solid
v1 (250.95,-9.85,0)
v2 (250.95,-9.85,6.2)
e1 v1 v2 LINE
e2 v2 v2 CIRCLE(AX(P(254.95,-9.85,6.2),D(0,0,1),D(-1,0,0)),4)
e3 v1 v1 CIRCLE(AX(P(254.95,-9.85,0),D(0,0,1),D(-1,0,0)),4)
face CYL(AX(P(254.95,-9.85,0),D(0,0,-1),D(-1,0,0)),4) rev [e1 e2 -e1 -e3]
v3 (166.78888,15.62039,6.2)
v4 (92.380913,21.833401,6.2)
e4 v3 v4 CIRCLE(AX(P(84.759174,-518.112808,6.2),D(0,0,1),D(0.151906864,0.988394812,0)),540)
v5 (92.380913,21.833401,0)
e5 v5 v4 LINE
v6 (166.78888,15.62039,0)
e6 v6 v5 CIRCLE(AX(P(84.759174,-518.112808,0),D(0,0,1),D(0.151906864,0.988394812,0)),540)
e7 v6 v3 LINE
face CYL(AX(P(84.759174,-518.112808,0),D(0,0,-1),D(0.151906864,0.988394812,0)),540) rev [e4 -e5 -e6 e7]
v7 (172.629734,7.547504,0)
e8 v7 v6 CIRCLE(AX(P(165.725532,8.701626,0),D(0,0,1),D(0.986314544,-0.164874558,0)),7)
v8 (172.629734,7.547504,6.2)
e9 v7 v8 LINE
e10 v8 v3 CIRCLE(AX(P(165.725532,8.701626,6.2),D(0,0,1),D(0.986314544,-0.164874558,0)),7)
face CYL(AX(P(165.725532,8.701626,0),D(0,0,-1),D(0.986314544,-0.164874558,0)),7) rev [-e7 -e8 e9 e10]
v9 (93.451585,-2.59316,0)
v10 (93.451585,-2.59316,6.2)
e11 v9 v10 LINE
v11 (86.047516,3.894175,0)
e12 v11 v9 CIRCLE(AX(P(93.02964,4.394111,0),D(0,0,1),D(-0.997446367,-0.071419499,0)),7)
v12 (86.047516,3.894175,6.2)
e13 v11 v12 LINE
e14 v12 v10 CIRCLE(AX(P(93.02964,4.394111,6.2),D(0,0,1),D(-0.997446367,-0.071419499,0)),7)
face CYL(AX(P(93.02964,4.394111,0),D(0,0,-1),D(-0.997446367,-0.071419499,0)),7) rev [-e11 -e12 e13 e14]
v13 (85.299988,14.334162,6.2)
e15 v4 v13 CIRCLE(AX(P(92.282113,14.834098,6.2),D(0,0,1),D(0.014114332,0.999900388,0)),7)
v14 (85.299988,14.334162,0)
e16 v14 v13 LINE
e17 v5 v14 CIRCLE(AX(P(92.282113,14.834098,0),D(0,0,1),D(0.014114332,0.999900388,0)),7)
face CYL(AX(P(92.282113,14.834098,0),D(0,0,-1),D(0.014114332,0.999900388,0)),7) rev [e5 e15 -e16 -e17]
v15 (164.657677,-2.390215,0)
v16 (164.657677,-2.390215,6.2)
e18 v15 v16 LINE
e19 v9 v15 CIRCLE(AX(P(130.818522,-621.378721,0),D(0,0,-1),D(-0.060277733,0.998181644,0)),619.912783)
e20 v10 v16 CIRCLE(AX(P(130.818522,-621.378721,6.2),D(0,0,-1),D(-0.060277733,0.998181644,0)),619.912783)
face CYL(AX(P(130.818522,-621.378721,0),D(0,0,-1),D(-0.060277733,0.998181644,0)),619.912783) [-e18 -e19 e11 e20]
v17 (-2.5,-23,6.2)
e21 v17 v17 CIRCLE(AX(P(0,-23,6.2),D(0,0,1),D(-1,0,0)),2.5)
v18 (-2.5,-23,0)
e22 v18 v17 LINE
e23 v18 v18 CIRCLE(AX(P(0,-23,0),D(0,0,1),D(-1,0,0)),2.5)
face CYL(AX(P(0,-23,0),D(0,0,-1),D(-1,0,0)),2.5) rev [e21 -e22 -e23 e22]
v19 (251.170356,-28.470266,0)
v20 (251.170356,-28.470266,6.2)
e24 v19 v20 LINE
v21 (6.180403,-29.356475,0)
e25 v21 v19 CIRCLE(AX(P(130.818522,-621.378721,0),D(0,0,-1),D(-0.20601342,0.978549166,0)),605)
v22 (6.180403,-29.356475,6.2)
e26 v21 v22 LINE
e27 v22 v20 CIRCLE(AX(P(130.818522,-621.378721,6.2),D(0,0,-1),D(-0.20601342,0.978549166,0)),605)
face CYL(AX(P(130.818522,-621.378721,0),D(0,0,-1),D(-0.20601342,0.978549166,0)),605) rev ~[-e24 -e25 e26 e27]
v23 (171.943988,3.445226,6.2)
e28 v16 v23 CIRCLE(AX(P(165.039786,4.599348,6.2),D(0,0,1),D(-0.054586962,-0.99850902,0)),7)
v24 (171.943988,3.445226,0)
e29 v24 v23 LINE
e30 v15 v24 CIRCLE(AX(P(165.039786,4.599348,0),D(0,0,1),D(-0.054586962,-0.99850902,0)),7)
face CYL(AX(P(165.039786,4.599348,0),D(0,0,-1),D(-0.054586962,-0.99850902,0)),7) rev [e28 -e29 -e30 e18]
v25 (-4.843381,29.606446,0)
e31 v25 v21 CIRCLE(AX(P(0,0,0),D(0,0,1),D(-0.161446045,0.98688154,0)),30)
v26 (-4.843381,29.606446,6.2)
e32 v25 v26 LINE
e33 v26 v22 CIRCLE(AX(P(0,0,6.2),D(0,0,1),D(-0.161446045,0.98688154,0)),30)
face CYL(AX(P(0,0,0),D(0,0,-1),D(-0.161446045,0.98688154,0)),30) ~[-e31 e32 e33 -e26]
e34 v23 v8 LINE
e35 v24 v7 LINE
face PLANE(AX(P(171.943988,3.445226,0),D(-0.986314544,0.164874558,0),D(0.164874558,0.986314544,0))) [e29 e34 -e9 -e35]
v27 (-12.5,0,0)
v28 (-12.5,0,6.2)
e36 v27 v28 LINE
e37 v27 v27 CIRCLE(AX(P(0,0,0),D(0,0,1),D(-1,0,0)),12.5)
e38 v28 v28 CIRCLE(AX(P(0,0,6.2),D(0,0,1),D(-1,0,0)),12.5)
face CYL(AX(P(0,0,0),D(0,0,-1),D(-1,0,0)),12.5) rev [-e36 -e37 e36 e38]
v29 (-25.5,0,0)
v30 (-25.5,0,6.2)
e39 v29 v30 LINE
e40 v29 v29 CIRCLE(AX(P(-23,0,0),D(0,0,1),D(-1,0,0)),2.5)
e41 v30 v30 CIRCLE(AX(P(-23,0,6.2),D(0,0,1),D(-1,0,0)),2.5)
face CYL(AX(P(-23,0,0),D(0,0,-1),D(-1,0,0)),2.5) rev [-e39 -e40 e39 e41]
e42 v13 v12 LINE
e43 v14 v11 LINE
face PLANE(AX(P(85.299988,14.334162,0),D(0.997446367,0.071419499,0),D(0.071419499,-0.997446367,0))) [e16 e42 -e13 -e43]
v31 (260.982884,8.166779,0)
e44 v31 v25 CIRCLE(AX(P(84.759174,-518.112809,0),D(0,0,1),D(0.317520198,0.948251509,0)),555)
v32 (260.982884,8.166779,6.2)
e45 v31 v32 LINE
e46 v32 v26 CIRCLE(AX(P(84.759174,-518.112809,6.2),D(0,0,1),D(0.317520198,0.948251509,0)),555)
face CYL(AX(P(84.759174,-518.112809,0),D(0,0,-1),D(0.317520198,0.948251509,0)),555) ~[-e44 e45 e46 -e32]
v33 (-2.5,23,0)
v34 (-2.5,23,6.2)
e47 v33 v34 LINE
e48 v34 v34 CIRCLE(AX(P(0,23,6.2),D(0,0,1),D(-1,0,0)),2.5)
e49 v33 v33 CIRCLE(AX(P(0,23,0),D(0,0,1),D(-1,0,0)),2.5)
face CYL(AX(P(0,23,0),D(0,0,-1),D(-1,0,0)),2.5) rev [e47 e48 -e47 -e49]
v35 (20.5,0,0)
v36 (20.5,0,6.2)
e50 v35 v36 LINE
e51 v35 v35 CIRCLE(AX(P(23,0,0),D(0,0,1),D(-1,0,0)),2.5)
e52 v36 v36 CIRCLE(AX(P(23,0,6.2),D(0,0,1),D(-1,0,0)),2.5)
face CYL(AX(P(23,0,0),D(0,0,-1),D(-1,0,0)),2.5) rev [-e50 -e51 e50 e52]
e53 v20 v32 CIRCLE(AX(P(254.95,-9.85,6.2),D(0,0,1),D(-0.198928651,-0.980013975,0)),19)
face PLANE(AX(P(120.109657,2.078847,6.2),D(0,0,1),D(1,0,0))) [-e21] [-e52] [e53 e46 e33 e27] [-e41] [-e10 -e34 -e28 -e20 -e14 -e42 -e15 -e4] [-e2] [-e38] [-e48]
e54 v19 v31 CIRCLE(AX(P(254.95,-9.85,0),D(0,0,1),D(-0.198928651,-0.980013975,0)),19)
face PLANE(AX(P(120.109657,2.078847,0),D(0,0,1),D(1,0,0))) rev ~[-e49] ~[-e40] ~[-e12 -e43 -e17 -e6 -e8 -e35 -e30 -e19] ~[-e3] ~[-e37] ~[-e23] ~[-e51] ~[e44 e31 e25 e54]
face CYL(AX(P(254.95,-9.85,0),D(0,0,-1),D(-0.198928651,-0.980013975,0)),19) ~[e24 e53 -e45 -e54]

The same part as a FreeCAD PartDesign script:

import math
import FreeCAD as App
import Part
import Sketcher

doc = App.newDocument("Part")
body = doc.addObject("PartDesign::Body", "Body")

# Sketch on XY plane
sketch1 = body.newObject("Sketcher::SketchObject", "Sketch")
sketch1.AttachmentSupport = (doc.getObject("XY_Plane"), [""])
sketch1.MapMode = "FlatFace"
sketch1.addGeometry(Part.ArcOfCircle(Part.Circle(App.Vector(0, 0, 0), App.Vector(0, 0, 1), 30), math.radians(99), math.radians(282)), False)
sketch1.addGeometry(Part.ArcOfCircle(Part.Circle(App.Vector(130.8, -621.4, 0), App.Vector(0, 0, 1), 605), math.radians(79), math.radians(102)), False)
sketch1.addGeometry(Part.ArcOfCircle(Part.Circle(App.Vector(254.9, -9.8, 0), App.Vector(0, 0, 1), 19), math.radians(-101), math.radians(71)), False)
sketch1.addGeometry(Part.ArcOfCircle(Part.Circle(App.Vector(84.8, -518.1, 0), App.Vector(0, 0, 1), 555), math.radians(71), math.radians(99)), False)
sketch1.addGeometry(Part.Circle(App.Vector(0, -23, 0), App.Vector(0, 0, 1), 2.5), False)
sketch1.addGeometry(Part.Circle(App.Vector(254.9, -9.8, 0), App.Vector(0, 0, 1), 4), False)
sketch1.addGeometry(Part.Circle(App.Vector(-23, 0, 0), App.Vector(0, 0, 1), 2.5), False)
sketch1.addGeometry(Part.Circle(App.Vector(0, 0, 0), App.Vector(0, 0, 1), 12.5), False)
sketch1.addGeometry(Part.Circle(App.Vector(23, 0, 0), App.Vector(0, 0, 1), 2.5), False)
sketch1.addGeometry(Part.Circle(App.Vector(0, 23, 0), App.Vector(0, 0, 1), 2.5), False)
sketch1.addGeometry(Part.LineSegment(App.Vector(86, 3.9, 0), App.Vector(85.3, 14.3, 0)), False)
sketch1.addGeometry(Part.ArcOfCircle(Part.Circle(App.Vector(92.3, 14.8, 0), App.Vector(0, 0, 1), 7), math.radians(89), math.radians(184)), False)
sketch1.addGeometry(Part.ArcOfCircle(Part.Circle(App.Vector(84.8, -518.1, 0), App.Vector(0, 0, 1), 540), math.radians(81.26), math.radians(89.19)), False)
sketch1.addGeometry(Part.ArcOfCircle(Part.Circle(App.Vector(165.7, 8.7, 0), App.Vector(0, 0, 1), 7), math.radians(-9), math.radians(81)), False)
sketch1.addGeometry(Part.LineSegment(App.Vector(172.6, 7.5, 0), App.Vector(171.9, 3.4, 0)), False)
sketch1.addGeometry(Part.ArcOfCircle(Part.Circle(App.Vector(165, 4.6, 0), App.Vector(0, 0, 1), 7), math.radians(-93), math.radians(-9)), False)
sketch1.addGeometry(Part.ArcOfCircle(Part.Circle(App.Vector(130.8, -621.4, 0), App.Vector(0, 0, 1), 619.9), math.radians(86.87), math.radians(93.46)), False)
sketch1.addGeometry(Part.ArcOfCircle(Part.Circle(App.Vector(93, 4.4, 0), App.Vector(0, 0, 1), 7), math.radians(-176), math.radians(-87)), False)
sketch1.addConstraint(Sketcher.Constraint("Tangent", 0, 2, 1, 2))
sketch1.addConstraint(Sketcher.Constraint("Tangent", 1, 1, 2, 1))
sketch1.addConstraint(Sketcher.Constraint("Tangent", 2, 2, 3, 1))
sketch1.addConstraint(Sketcher.Constraint("Tangent", 3, 2, 0, 1))
sketch1.addConstraint(Sketcher.Constraint("Tangent", 10, 2, 11, 2))
sketch1.addConstraint(Sketcher.Constraint("Tangent", 11, 1, 12, 2))
sketch1.addConstraint(Sketcher.Constraint("Tangent", 12, 1, 13, 2))
sketch1.addConstraint(Sketcher.Constraint("Tangent", 13, 1, 14, 1))
sketch1.addConstraint(Sketcher.Constraint("Tangent", 14, 2, 15, 2))
sketch1.addConstraint(Sketcher.Constraint("Tangent", 15, 1, 16, 1))
sketch1.addConstraint(Sketcher.Constraint("Tangent", 16, 2, 17, 2))
sketch1.addConstraint(Sketcher.Constraint("Tangent", 17, 1, 10, 1))
sketch1.addConstraint(Sketcher.Constraint("Coincident", 0, 3, -1, 1))
sketch1.addConstraint(Sketcher.Constraint("Coincident", 7, 3, -1, 1))
sketch1.addConstraint(Sketcher.Constraint("Coincident", 5, 3, 2, 3))
sketch1.addConstraint(Sketcher.Constraint("Coincident", 12, 3, 3, 3))
sketch1.addConstraint(Sketcher.Constraint("Coincident", 16, 3, 1, 3))
sketch1.addConstraint(Sketcher.Constraint("Equal", 4, 6))
sketch1.addConstraint(Sketcher.Constraint("Equal", 6, 8))
sketch1.addConstraint(Sketcher.Constraint("Equal", 8, 9))
sketch1.addConstraint(Sketcher.Constraint("Equal", 11, 13))
sketch1.addConstraint(Sketcher.Constraint("Equal", 13, 15))
sketch1.addConstraint(Sketcher.Constraint("Equal", 15, 17))
sketch1.addConstraint(Sketcher.Constraint("Symmetric", 6, 3, 8, 3, -1, 1))
sketch1.addConstraint(Sketcher.Constraint("Symmetric", 4, 3, 9, 3, -1, 1))
sketch1.addConstraint(Sketcher.Constraint("PointOnObject", 4, 3, -2))
sketch1.addConstraint(Sketcher.Constraint("PointOnObject", 6, 3, -1))
sketch1.addConstraint(Sketcher.Constraint("Diameter", 4, 5.0))
sketch1.addConstraint(Sketcher.Constraint("Diameter", 5, 8.0))
sketch1.addConstraint(Sketcher.Constraint("Diameter", 7, 25.0))
sketch1.addConstraint(Sketcher.Constraint("Radius", 0, 30.0))
sketch1.addConstraint(Sketcher.Constraint("Radius", 1, 605.0))
sketch1.addConstraint(Sketcher.Constraint("Radius", 2, 19.0))
sketch1.addConstraint(Sketcher.Constraint("Radius", 3, 555.0))
sketch1.addConstraint(Sketcher.Constraint("Radius", 11, 7.0))
sketch1.addConstraint(Sketcher.Constraint("Radius", 12, 540.0))
sketch1.addConstraint(Sketcher.Constraint("DistanceY", 4, 3, -1, 1, 23.0))
sketch1.addConstraint(Sketcher.Constraint("DistanceX", 6, 3, -1, 1, 23.0))
sketch1.addConstraint(Sketcher.Constraint("DistanceX", -1, 1, 2, 3, 254.95))
sketch1.addConstraint(Sketcher.Constraint("DistanceY", 2, 3, -1, 1, 9.85))
sketch1.addConstraint(Sketcher.Constraint("Radius", 16, 619.912783))
sketch1.addConstraint(Sketcher.Constraint("Distance", 14, 4.159199))
sketch1.addConstraint(Sketcher.Constraint("DistanceY", -1, 1, 11, 3, 14.834098))
sketch1.addConstraint(Sketcher.Constraint("DistanceX", 13, 3, 13, 1, 6.904202))
sketch1.addConstraint(Sketcher.Constraint("DistanceX", -1, 1, 17, 3, 93.02964))
pad1 = body.newObject("PartDesign::Pad", "Pad")
pad1.Profile = sketch1
pad1.Length = 6.2

doc.recompute()
